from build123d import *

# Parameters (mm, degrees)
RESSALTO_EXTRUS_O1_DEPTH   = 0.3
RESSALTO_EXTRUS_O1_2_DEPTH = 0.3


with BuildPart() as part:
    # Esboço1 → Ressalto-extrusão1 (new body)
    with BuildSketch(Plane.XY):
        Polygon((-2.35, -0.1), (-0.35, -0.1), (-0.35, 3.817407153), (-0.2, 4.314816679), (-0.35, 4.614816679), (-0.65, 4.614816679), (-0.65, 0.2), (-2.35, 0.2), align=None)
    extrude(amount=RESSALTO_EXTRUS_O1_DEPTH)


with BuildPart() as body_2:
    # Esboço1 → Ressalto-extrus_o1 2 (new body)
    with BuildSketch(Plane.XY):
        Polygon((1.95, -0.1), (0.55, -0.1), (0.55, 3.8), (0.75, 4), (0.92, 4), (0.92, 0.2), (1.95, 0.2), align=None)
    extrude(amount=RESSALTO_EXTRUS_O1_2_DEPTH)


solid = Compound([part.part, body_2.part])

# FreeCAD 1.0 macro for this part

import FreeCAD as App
import Part
import Sketcher
Q = App.Units.Quantity

doc = App.newDocument("Part")
body = doc.addObject("PartDesign::Body", "Body")

# Sketch on XY plane
sketch1 = body.newObject("Sketcher::SketchObject", "Sketch")
sketch1.AttachmentSupport = (doc.getObject("XY_Plane"), [""])
sketch1.MapMode = "FlatFace"
sketch1.addGeometry([
    Part.LineSegment(App.Vector(-2.35, -0.1, 0), App.Vector(-0.35, -0.1, 0)),  # 0
    Part.LineSegment(App.Vector(-0.35, -0.1, 0), App.Vector(-0.35, 3.82, 0)),  # 1
    Part.LineSegment(App.Vector(-0.35, 3.82, 0), App.Vector(-0.2, 4.31, 0)),  # 2
    Part.LineSegment(App.Vector(-0.2, 4.31, 0), App.Vector(-0.35, 4.61, 0)),  # 3
    Part.LineSegment(App.Vector(-0.35, 4.61, 0), App.Vector(-0.65, 4.61, 0)),  # 4
    Part.LineSegment(App.Vector(-0.65, 4.61, 0), App.Vector(-0.65, 0.2, 0)),  # 5
    Part.LineSegment(App.Vector(-0.65, 0.2, 0), App.Vector(-2.35, 0.2, 0)),  # 6
    Part.LineSegment(App.Vector(-2.35, 0.2, 0), App.Vector(-2.35, -0.1, 0)),  # 7
], False)
sketch1.addConstraint([
    Sketcher.Constraint("Coincident", 0, 2, 1, 1),
    Sketcher.Constraint("Coincident", 1, 2, 2, 1),
    Sketcher.Constraint("Coincident", 2, 2, 3, 1),
    Sketcher.Constraint("Coincident", 3, 2, 4, 1),
    Sketcher.Constraint("Coincident", 4, 2, 5, 1),
    Sketcher.Constraint("Coincident", 5, 2, 6, 1),
    Sketcher.Constraint("Coincident", 6, 2, 7, 1),
    Sketcher.Constraint("Coincident", 7, 2, 0, 1),
    Sketcher.Constraint("Horizontal", 0),
    Sketcher.Constraint("Vertical", 1),
    Sketcher.Constraint("Horizontal", 4),
    Sketcher.Constraint("Vertical", 5),
    Sketcher.Constraint("Horizontal", 6),
    Sketcher.Constraint("Vertical", 7),
    Sketcher.Constraint("Vertical", 1, 2, 3, 2),
    Sketcher.Constraint("Equal", 4, 7),
    Sketcher.Constraint("DistanceX", 0, 1, 0, 2, 2.0),
    Sketcher.Constraint("DistanceX", 4, 2, 4, 1, 0.3),
    Sketcher.Constraint("DistanceY", 0, 2, -1, 1, 0.1),
    Sketcher.Constraint("DistanceX", 2, 2, -1, 1, 0.2),
    Sketcher.Constraint("DistanceY", 2, 2, 3, 2, 0.3),
    Sketcher.Constraint("DistanceX", 0, 2, -1, 1, 0.35),
    Sketcher.Constraint("DistanceY", 1, 1, 1, 2, 3.917407),
    Sketcher.Constraint("DistanceY", 5, 2, 5, 1, 4.414817),
])
pad1 = body.newObject("PartDesign::Pad", "Pad")
pad1.Profile = sketch1
pad1.Length = 0.3
body2 = doc.addObject("PartDesign::Body", "Body001")

# Sketch on XY plane
sketch2 = body2.newObject("Sketcher::SketchObject", "Sketch001")
sketch2.AttachmentSupport = (doc.getObject("XY_Plane001"), [""])
sketch2.MapMode = "FlatFace"
sketch2.addGeometry([
    Part.LineSegment(App.Vector(0.55, -0.1, 0), App.Vector(1.95, -0.1, 0)),  # 0
    Part.LineSegment(App.Vector(1.95, -0.1, 0), App.Vector(1.95, 0.2, 0)),  # 1
    Part.LineSegment(App.Vector(1.95, 0.2, 0), App.Vector(0.92, 0.2, 0)),  # 2
    Part.LineSegment(App.Vector(0.92, 0.2, 0), App.Vector(0.92, 4, 0)),  # 3
    Part.LineSegment(App.Vector(0.92, 4, 0), App.Vector(0.75, 4, 0)),  # 4
    Part.LineSegment(App.Vector(0.75, 4, 0), App.Vector(0.55, 3.8, 0)),  # 5
    Part.LineSegment(App.Vector(0.55, 3.8, 0), App.Vector(0.55, -0.1, 0)),  # 6
], False)
sketch2.addConstraint([
    Sketcher.Constraint("Coincident", 0, 2, 1, 1),
    Sketcher.Constraint("Coincident", 1, 2, 2, 1),
    Sketcher.Constraint("Coincident", 2, 2, 3, 1),
    Sketcher.Constraint("Coincident", 3, 2, 4, 1),
    Sketcher.Constraint("Coincident", 4, 2, 5, 1),
    Sketcher.Constraint("Coincident", 5, 2, 6, 1),
    Sketcher.Constraint("Coincident", 6, 2, 0, 1),
    Sketcher.Constraint("Horizontal", 0),
    Sketcher.Constraint("Vertical", 1),
    Sketcher.Constraint("Horizontal", 2),
    Sketcher.Constraint("Vertical", 3),
    Sketcher.Constraint("Horizontal", 4),
    Sketcher.Constraint("Vertical", 6),
    Sketcher.Constraint("Angle", 5, Q("-135 deg")),
    Sketcher.Constraint("DistanceX", 0, 1, 0, 2, 1.4),
    Sketcher.Constraint("DistanceY", 1, 1, 1, 2, 0.3),
    Sketcher.Constraint("DistanceY", 3, 1, 3, 2, 3.8),
    Sketcher.Constraint("DistanceY", 6, 2, 6, 1, 3.9),
    Sketcher.Constraint("DistanceY", -1, 1, 3, 2, 4.0),
    Sketcher.Constraint("DistanceX", 2, 2, 2, 1, 1.03),
    Sketcher.Constraint("DistanceX", -1, 1, 0, 2, 1.95),
])
pad2 = body2.newObject("PartDesign::Pad", "Pad001")
pad2.Profile = sketch2
pad2.Length = 0.3

doc.recompute()
